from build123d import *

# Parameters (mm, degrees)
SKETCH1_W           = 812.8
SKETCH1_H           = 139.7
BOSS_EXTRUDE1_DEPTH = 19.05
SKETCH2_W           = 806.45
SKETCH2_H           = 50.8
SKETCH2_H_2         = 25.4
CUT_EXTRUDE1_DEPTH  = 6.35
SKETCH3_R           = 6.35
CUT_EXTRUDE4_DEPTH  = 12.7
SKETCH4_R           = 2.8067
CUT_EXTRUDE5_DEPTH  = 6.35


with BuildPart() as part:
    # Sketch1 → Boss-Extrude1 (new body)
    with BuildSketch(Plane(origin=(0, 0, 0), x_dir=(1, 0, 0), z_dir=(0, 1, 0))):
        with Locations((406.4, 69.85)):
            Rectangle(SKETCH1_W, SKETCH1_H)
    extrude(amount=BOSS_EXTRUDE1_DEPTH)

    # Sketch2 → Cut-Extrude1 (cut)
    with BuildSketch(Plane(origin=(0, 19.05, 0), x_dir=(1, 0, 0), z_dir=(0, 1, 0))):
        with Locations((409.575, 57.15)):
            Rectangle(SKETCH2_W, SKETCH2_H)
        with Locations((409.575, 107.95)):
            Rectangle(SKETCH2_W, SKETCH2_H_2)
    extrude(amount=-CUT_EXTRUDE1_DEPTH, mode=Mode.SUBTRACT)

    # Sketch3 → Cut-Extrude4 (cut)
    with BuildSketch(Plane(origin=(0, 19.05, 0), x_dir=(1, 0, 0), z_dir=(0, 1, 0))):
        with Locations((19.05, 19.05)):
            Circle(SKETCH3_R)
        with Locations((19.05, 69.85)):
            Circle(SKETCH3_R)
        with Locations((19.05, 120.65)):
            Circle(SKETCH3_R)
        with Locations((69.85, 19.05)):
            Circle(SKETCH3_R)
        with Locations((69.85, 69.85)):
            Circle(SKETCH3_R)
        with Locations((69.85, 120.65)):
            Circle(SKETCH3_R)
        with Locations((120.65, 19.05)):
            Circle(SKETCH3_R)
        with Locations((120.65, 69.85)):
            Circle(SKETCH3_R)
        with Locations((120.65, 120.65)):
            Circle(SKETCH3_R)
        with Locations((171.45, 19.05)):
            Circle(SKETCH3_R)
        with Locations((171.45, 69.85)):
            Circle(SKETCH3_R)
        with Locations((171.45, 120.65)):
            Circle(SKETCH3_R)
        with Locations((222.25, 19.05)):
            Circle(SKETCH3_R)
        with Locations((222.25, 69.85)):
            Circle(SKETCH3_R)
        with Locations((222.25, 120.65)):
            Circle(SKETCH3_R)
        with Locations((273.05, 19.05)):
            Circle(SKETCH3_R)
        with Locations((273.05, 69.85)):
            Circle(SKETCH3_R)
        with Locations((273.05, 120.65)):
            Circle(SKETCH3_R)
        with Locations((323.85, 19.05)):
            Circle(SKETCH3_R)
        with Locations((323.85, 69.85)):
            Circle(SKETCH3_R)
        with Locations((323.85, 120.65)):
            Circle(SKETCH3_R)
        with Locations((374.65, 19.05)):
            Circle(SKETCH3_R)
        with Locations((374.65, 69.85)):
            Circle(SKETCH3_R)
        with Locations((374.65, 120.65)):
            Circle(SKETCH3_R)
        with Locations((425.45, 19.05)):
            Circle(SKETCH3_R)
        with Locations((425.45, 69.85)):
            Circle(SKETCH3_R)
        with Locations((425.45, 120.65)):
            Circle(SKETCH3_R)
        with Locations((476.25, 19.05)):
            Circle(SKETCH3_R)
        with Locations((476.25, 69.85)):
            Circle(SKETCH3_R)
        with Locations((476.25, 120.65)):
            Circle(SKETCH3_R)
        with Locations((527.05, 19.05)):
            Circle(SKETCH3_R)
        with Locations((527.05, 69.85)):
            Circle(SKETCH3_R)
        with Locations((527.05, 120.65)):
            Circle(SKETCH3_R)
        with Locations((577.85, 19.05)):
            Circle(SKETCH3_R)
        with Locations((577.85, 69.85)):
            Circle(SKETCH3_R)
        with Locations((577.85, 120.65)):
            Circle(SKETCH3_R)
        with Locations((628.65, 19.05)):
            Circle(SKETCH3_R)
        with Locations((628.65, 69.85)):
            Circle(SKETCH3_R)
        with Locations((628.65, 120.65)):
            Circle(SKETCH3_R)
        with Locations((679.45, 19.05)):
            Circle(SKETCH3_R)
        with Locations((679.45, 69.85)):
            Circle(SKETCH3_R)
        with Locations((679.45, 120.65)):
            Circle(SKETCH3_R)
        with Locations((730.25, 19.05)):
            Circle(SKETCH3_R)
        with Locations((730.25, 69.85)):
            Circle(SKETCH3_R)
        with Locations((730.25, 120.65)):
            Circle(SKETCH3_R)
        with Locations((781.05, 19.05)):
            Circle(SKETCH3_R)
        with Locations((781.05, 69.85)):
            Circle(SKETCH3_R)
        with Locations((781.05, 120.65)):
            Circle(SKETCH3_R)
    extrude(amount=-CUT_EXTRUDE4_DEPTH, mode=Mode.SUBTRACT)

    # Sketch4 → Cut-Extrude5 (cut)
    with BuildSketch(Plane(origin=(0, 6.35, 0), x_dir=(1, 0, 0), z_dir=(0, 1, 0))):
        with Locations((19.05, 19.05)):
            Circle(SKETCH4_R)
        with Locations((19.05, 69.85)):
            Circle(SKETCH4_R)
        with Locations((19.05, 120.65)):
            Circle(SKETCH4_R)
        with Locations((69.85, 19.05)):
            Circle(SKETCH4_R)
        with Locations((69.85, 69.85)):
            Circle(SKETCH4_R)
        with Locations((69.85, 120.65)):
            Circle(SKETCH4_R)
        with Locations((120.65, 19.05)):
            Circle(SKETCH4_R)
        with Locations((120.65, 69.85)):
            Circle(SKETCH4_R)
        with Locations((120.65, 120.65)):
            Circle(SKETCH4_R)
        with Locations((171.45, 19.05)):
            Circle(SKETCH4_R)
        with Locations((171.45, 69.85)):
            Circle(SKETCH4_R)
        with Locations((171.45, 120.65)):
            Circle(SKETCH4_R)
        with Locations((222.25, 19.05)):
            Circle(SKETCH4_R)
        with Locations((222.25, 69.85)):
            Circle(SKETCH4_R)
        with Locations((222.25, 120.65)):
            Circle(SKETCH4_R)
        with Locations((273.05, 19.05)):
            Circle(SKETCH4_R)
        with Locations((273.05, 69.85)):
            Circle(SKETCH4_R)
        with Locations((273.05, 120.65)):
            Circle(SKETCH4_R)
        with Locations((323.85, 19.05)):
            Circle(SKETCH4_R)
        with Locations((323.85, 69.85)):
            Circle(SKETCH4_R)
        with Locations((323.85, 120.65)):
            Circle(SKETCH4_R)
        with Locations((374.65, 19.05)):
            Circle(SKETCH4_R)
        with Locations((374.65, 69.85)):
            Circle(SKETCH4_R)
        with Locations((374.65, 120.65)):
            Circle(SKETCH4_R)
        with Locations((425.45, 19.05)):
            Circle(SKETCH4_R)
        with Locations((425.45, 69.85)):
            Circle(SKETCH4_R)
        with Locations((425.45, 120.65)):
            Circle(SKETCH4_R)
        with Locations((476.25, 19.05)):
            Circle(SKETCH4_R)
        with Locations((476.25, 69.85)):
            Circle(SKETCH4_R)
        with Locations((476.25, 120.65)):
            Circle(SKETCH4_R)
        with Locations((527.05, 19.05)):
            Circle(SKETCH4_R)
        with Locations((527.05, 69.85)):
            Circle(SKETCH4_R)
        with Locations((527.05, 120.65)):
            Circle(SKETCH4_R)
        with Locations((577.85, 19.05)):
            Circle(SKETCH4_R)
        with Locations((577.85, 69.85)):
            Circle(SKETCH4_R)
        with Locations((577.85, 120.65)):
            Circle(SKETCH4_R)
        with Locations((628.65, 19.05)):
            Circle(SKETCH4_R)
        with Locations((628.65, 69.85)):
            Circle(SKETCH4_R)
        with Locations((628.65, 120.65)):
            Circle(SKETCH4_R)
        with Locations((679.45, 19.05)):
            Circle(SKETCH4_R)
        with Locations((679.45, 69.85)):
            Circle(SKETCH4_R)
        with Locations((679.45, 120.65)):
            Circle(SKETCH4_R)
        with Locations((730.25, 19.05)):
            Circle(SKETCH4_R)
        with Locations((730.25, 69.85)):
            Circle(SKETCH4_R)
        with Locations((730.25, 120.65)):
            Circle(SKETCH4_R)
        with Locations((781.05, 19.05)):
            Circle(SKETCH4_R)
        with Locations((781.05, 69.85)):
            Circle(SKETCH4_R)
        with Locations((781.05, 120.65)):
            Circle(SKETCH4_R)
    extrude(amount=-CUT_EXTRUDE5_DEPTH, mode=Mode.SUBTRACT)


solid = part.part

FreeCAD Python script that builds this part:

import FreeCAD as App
import Part
import Sketcher
from FreeCAD import Vector
Q = App.Units.Quantity

doc = App.newDocument("Part")
body = doc.addObject("PartDesign::Body", "Body")

# Sketch on XZ plane
sketch1 = doc.addObject("Sketcher::SketchObject", "Sketch")
body.addObject(sketch1)
sketch1.AttachmentSupport = (doc.XZ_Plane, [""])
sketch1.MapMode = "FlatFace"
sketch1.addGeometry([
    Part.LineSegment(Vector(0, -140, 0), Vector(0, 0, 0)),
    Part.LineSegment(Vector(0, 0, 0), Vector(813, 0, 0)),
    Part.LineSegment(Vector(813, 0, 0), Vector(813, -140, 0)),
    Part.LineSegment(Vector(813, -140, 0), Vector(0, -140, 0)),
], False)
sketch1.addConstraint([
    Sketcher.Constraint("Coincident", 0, 2, 1, 1),
    Sketcher.Constraint("Coincident", 1, 2, 2, 1),
    Sketcher.Constraint("Coincident", 2, 2, 3, 1),
    Sketcher.Constraint("Coincident", 3, 2, 0, 1),
    Sketcher.Constraint("Vertical", 0),
    Sketcher.Constraint("Horizontal", 1),
    Sketcher.Constraint("Vertical", 2),
    Sketcher.Constraint("Horizontal", 3),
    Sketcher.Constraint("Coincident", 0, 2, -1, 1),
    Sketcher.Constraint("DistanceX", 1, 1, 1, 2, Q("32 in")),
    Sketcher.Constraint("DistanceY", 0, 1, 0, 2, Q("5.5 in")),
])
pad1 = doc.addObject("PartDesign::Pad", "Pad")
body.addObject(pad1)
pad1.Profile = sketch1
pad1.Length = Q("0.75 in")
pad1.Reversed = True

# Sketch on XZ plane
sketch2 = doc.addObject("Sketcher::SketchObject", "Sketch001")
body.addObject(sketch2)
sketch2.AttachmentSupport = (doc.XZ_Plane, [""])
sketch2.MapMode = "FlatFace"
sketch2.AttachmentOffset = App.Placement(Vector(0, 0, -0.75 * 25.4), App.Rotation())
sketch2.addGeometry([
    Part.LineSegment(Vector(6, -83, 0), Vector(6, -32, 0)),  # 0
    Part.LineSegment(Vector(6, -32, 0), Vector(813, -32, 0)),  # 1
    Part.LineSegment(Vector(813, -32, 0), Vector(813, -83, 0)),  # 2
    Part.LineSegment(Vector(813, -83, 0), Vector(6, -83, 0)),  # 3
    Part.LineSegment(Vector(6, -121, 0), Vector(6, -95, 0)),  # 4
    Part.LineSegment(Vector(6, -95, 0), Vector(813, -95, 0)),  # 5
    Part.LineSegment(Vector(813, -95, 0), Vector(813, -121, 0)),  # 6
    Part.LineSegment(Vector(813, -121, 0), Vector(6, -121, 0)),  # 7
], False)
sketch2.addConstraint([
    Sketcher.Constraint("Coincident", 0, 2, 1, 1),
    Sketcher.Constraint("Coincident", 1, 2, 2, 1),
    Sketcher.Constraint("Coincident", 2, 2, 3, 1),
    Sketcher.Constraint("Coincident", 3, 2, 0, 1),
    Sketcher.Constraint("Coincident", 4, 2, 5, 1),
    Sketcher.Constraint("Coincident", 5, 2, 6, 1),
    Sketcher.Constraint("Coincident", 6, 2, 7, 1),
    Sketcher.Constraint("Coincident", 7, 2, 4, 1),
    Sketcher.Constraint("Vertical", 0),
    Sketcher.Constraint("Horizontal", 1),
    Sketcher.Constraint("Vertical", 2),
    Sketcher.Constraint("Horizontal", 3),
    Sketcher.Constraint("Vertical", 4),
    Sketcher.Constraint("Horizontal", 5),
    Sketcher.Constraint("Vertical", 6),
    Sketcher.Constraint("Horizontal", 7),
    Sketcher.Constraint("Vertical", 3, 2, 4, 2),
    Sketcher.Constraint("Vertical", 2, 2, 5, 2),
    Sketcher.Constraint("DistanceY", 0, 1, 0, 2, Q("2 in")),
    Sketcher.Constraint("DistanceY", 4, 1, 4, 2, Q("1 in")),
    Sketcher.Constraint("DistanceX", -1, 1, 1, 2, Q("32 in")),
    Sketcher.Constraint("DistanceX", 1, 1, 1, 2, Q("31.75 in")),
    Sketcher.Constraint("DistanceY", 4, 2, 3, 2, Q("0.5 in")),
    Sketcher.Constraint("DistanceY", 0, 2, -1, 1, Q("1.25 in")),
])
pocket1 = doc.addObject("PartDesign::Pocket", "Pocket")
body.addObject(pocket1)
pocket1.Profile = sketch2
pocket1.Length = Q("0.25 in")
pocket1.Reversed = True

# Sketch on XZ plane
sketch3 = doc.addObject("Sketcher::SketchObject", "Sketch002")
body.addObject(sketch3)
sketch3.AttachmentSupport = (doc.XZ_Plane, [""])
sketch3.MapMode = "FlatFace"
sketch3.AttachmentOffset = App.Placement(Vector(0, 0, -0.75 * 25.4), App.Rotation())
sketch3.addGeometry([
    Part.Circle(Vector(19, -19, 0), Vector(0, 0, 1), 6),  # 0
    Part.Circle(Vector(19, -70, 0), Vector(0, 0, 1), 6),  # 1
    Part.Circle(Vector(19, -121, 0), Vector(0, 0, 1), 6),  # 2
    Part.Circle(Vector(70, -19, 0), Vector(0, 0, 1), 6),  # 3
    Part.Circle(Vector(70, -70, 0), Vector(0, 0, 1), 6),  # 4
    Part.Circle(Vector(70, -121, 0), Vector(0, 0, 1), 6),  # 5
    Part.Circle(Vector(121, -19, 0), Vector(0, 0, 1), 6),  # 6
    Part.Circle(Vector(121, -70, 0), Vector(0, 0, 1), 6),  # 7
    Part.Circle(Vector(121, -121, 0), Vector(0, 0, 1), 6),  # 8
    Part.Circle(Vector(171, -19, 0), Vector(0, 0, 1), 6),  # 9
    Part.Circle(Vector(171, -70, 0), Vector(0, 0, 1), 6),  # 10
    Part.Circle(Vector(171, -121, 0), Vector(0, 0, 1), 6),  # 11
    Part.Circle(Vector(222, -19, 0), Vector(0, 0, 1), 6),  # 12
    Part.Circle(Vector(222, -70, 0), Vector(0, 0, 1), 6),  # 13
    Part.Circle(Vector(222, -121, 0), Vector(0, 0, 1), 6),  # 14
    Part.Circle(Vector(273, -19, 0), Vector(0, 0, 1), 6),  # 15
    Part.Circle(Vector(273, -70, 0), Vector(0, 0, 1), 6),  # 16
    Part.Circle(Vector(273, -121, 0), Vector(0, 0, 1), 6),  # 17
    Part.Circle(Vector(324, -19, 0), Vector(0, 0, 1), 6),  # 18
    Part.Circle(Vector(324, -70, 0), Vector(0, 0, 1), 6),  # 19
    Part.Circle(Vector(324, -121, 0), Vector(0, 0, 1), 6),  # 20
    Part.Circle(Vector(375, -19, 0), Vector(0, 0, 1), 6),  # 21
    Part.Circle(Vector(375, -70, 0), Vector(0, 0, 1), 6),  # 22
    Part.Circle(Vector(375, -121, 0), Vector(0, 0, 1), 6),  # 23
    Part.Circle(Vector(425, -19, 0), Vector(0, 0, 1), 6),  # 24
    Part.Circle(Vector(425, -70, 0), Vector(0, 0, 1), 6),  # 25
    Part.Circle(Vector(425, -121, 0), Vector(0, 0, 1), 6),  # 26
    Part.Circle(Vector(476, -19, 0), Vector(0, 0, 1), 6),  # 27
    Part.Circle(Vector(476, -70, 0), Vector(0, 0, 1), 6),  # 28
    Part.Circle(Vector(476, -121, 0), Vector(0, 0, 1), 6),  # 29
    Part.Circle(Vector(527, -19, 0), Vector(0, 0, 1), 6),  # 30
    Part.Circle(Vector(527, -70, 0), Vector(0, 0, 1), 6),  # 31
    Part.Circle(Vector(527, -121, 0), Vector(0, 0, 1), 6),  # 32
    Part.Circle(Vector(578, -19, 0), Vector(0, 0, 1), 6),  # 33
    Part.Circle(Vector(578, -70, 0), Vector(0, 0, 1), 6),  # 34
    Part.Circle(Vector(578, -121, 0), Vector(0, 0, 1), 6),  # 35
    Part.Circle(Vector(629, -19, 0), Vector(0, 0, 1), 6),  # 36
    Part.Circle(Vector(629, -70, 0), Vector(0, 0, 1), 6),  # 37
    Part.Circle(Vector(629, -121, 0), Vector(0, 0, 1), 6),  # 38
    Part.Circle(Vector(679, -19, 0), Vector(0, 0, 1), 6),  # 39
    Part.Circle(Vector(679, -70, 0), Vector(0, 0, 1), 6),  # 40
    Part.Circle(Vector(679, -121, 0), Vector(0, 0, 1), 6),  # 41
    Part.Circle(Vector(730, -19, 0), Vector(0, 0, 1), 6),  # 42
    Part.Circle(Vector(730, -70, 0), Vector(0, 0, 1), 6),  # 43
    Part.Circle(Vector(730, -121, 0), Vector(0, 0, 1), 6),  # 44
    Part.Circle(Vector(781, -19, 0), Vector(0, 0, 1), 6),  # 45
    Part.Circle(Vector(781, -70, 0), Vector(0, 0, 1), 6),  # 46
    Part.Circle(Vector(781, -121, 0), Vector(0, 0, 1), 6),  # 47
], False)
sketch3.addConstraint([
    Sketcher.Constraint("Equal", 0, 1),
    Sketcher.Constraint("Equal", 1, 2),
    Sketcher.Constraint("Equal", 2, 3),
    Sketcher.Constraint("Equal", 3, 4),
    Sketcher.Constraint("Equal", 4, 5),
    Sketcher.Constraint("Equal", 5, 6),
    Sketcher.Constraint("Equal", 6, 7),
    Sketcher.Constraint("Equal", 7, 8),
    Sketcher.Constraint("Equal", 8, 9),
    Sketcher.Constraint("Equal", 9, 10),
    Sketcher.Constraint("Equal", 10, 11),
    Sketcher.Constraint("Equal", 11, 12),
    Sketcher.Constraint("Equal", 12, 13),
    Sketcher.Constraint("Equal", 13, 14),
    Sketcher.Constraint("Equal", 14, 15),
    Sketcher.Constraint("Equal", 15, 16),
    Sketcher.Constraint("Equal", 16, 17),
    Sketcher.Constraint("Equal", 17, 18),
    Sketcher.Constraint("Equal", 18, 19),
    Sketcher.Constraint("Equal", 19, 20),
    Sketcher.Constraint("Equal", 20, 21),
    Sketcher.Constraint("Equal", 21, 22),
    Sketcher.Constraint("Equal", 22, 23),
    Sketcher.Constraint("Equal", 23, 24),
    Sketcher.Constraint("Equal", 24, 25),
    Sketcher.Constraint("Equal", 25, 26),
    Sketcher.Constraint("Equal", 26, 27),
    Sketcher.Constraint("Equal", 27, 28),
    Sketcher.Constraint("Equal", 28, 29),
    Sketcher.Constraint("Equal", 29, 30),
    Sketcher.Constraint("Equal", 30, 31),
    Sketcher.Constraint("Equal", 31, 32),
    Sketcher.Constraint("Equal", 32, 33),
    Sketcher.Constraint("Equal", 33, 34),
    Sketcher.Constraint("Equal", 34, 35),
    Sketcher.Constraint("Equal", 35, 36),
    Sketcher.Constraint("Equal", 36, 37),
    Sketcher.Constraint("Equal", 37, 38),
    Sketcher.Constraint("Equal", 38, 39),
    Sketcher.Constraint("Equal", 39, 40),
    Sketcher.Constraint("Equal", 40, 41),
    Sketcher.Constraint("Equal", 41, 42),
    Sketcher.Constraint("Equal", 42, 43),
    Sketcher.Constraint("Equal", 43, 44),
    Sketcher.Constraint("Equal", 44, 45),
    Sketcher.Constraint("Equal", 45, 46),
    Sketcher.Constraint("Equal", 46, 47),
    Sketcher.Constraint("Horizontal", 0, 3, 3, 3),
    Sketcher.Constraint("Horizontal", 1, 3, 4, 3),
    Sketcher.Constraint("Horizontal", 2, 3, 5, 3),
    Sketcher.Constraint("Horizontal", 3, 3, 6, 3),
    Sketcher.Constraint("Horizontal", 4, 3, 7, 3),
    Sketcher.Constraint("Horizontal", 5, 3, 8, 3),
    Sketcher.Constraint("Horizontal", 6, 3, 9, 3),
    Sketcher.Constraint("Horizontal", 7, 3, 10, 3),
    Sketcher.Constraint("Horizontal", 8, 3, 11, 3),
    Sketcher.Constraint("Horizontal", 9, 3, 12, 3),
    Sketcher.Constraint("Horizontal", 10, 3, 13, 3),
    Sketcher.Constraint("Horizontal", 11, 3, 14, 3),
    Sketcher.Constraint("Horizontal", 12, 3, 15, 3),
    Sketcher.Constraint("Horizontal", 13, 3, 16, 3),
    Sketcher.Constraint("Horizontal", 14, 3, 17, 3),
    Sketcher.Constraint("Horizontal", 15, 3, 18, 3),
    Sketcher.Constraint("Horizontal", 16, 3, 19, 3),
    Sketcher.Constraint("Horizontal", 17, 3, 20, 3),
    Sketcher.Constraint("Horizontal", 18, 3, 21, 3),
    Sketcher.Constraint("Horizontal", 19, 3, 22, 3),
    Sketcher.Constraint("Horizontal", 20, 3, 23, 3),
    Sketcher.Constraint("Horizontal", 21, 3, 24, 3),
    Sketcher.Constraint("Horizontal", 22, 3, 25, 3),
    Sketcher.Constraint("Horizontal", 23, 3, 26, 3),
    Sketcher.Constraint("Horizontal", 24, 3, 27, 3),
    Sketcher.Constraint("Horizontal", 25, 3, 28, 3),
    Sketcher.Constraint("Horizontal", 26, 3, 29, 3),
    Sketcher.Constraint("Horizontal", 27, 3, 30, 3),
    Sketcher.Constraint("Horizontal", 28, 3, 31, 3),
    Sketcher.Constraint("Horizontal", 29, 3, 32, 3),
    Sketcher.Constraint("Horizontal", 30, 3, 33, 3),
    Sketcher.Constraint("Horizontal", 31, 3, 34, 3),
    Sketcher.Constraint("Horizontal", 32, 3, 35, 3),
    Sketcher.Constraint("Horizontal", 33, 3, 36, 3),
    Sketcher.Constraint("Horizontal", 34, 3, 37, 3),
    Sketcher.Constraint("Horizontal", 35, 3, 38, 3),
    Sketcher.Constraint("Horizontal", 36, 3, 39, 3),
    Sketcher.Constraint("Horizontal", 37, 3, 40, 3),
    Sketcher.Constraint("Horizontal", 38, 3, 41, 3),
    Sketcher.Constraint("Horizontal", 39, 3, 42, 3),
    Sketcher.Constraint("Horizontal", 40, 3, 43, 3),
    Sketcher.Constraint("Horizontal", 41, 3, 44, 3),
    Sketcher.Constraint("Horizontal", 42, 3, 45, 3),
    Sketcher.Constraint("Horizontal", 43, 3, 46, 3),
    Sketcher.Constraint("Horizontal", 44, 3, 47, 3),
    Sketcher.Constraint("Vertical", 0, 3, 1, 3),
    Sketcher.Constraint("Vertical", 1, 3, 2, 3),
    Sketcher.Constraint("Vertical", 3, 3, 4, 3),
    Sketcher.Constraint("Vertical", 4, 3, 5, 3),
    Sketcher.Constraint("Vertical", 6, 3, 7, 3),
    Sketcher.Constraint("Vertical", 7, 3, 8, 3),
    Sketcher.Constraint("Vertical", 9, 3, 10, 3),
    Sketcher.Constraint("Vertical", 10, 3, 11, 3),
    Sketcher.Constraint("Vertical", 12, 3, 13, 3),
    Sketcher.Constraint("Vertical", 13, 3, 14, 3),
    Sketcher.Constraint("Vertical", 15, 3, 16, 3),
    Sketcher.Constraint("Vertical", 16, 3, 17, 3),
    Sketcher.Constraint("Vertical", 18, 3, 19, 3),
    Sketcher.Constraint("Vertical", 19, 3, 20, 3),
    Sketcher.Constraint("Vertical", 21, 3, 22, 3),
    Sketcher.Constraint("Vertical", 22, 3, 23, 3),
    Sketcher.Constraint("Vertical", 24, 3, 25, 3),
    Sketcher.Constraint("Vertical", 25, 3, 26, 3),
    Sketcher.Constraint("Vertical", 27, 3, 28, 3),
    Sketcher.Constraint("Vertical", 28, 3, 29, 3),
    Sketcher.Constraint("Vertical", 30, 3, 31, 3),
    Sketcher.Constraint("Vertical", 31, 3, 32, 3),
    Sketcher.Constraint("Vertical", 33, 3, 34, 3),
    Sketcher.Constraint("Vertical", 34, 3, 35, 3),
    Sketcher.Constraint("Vertical", 36, 3, 37, 3),
    Sketcher.Constraint("Vertical", 37, 3, 38, 3),
    Sketcher.Constraint("Vertical", 39, 3, 40, 3),
    Sketcher.Constraint("Vertical", 40, 3, 41, 3),
    Sketcher.Constraint("Vertical", 42, 3, 43, 3),
    Sketcher.Constraint("Vertical", 43, 3, 44, 3),
    Sketcher.Constraint("Vertical", 45, 3, 46, 3),
    Sketcher.Constraint("Vertical", 46, 3, 47, 3),
    Sketcher.Constraint("Diameter", 0, Q("0.5 in")),
    Sketcher.Constraint("DistanceY", 1, 3, 0, 3, Q("2 in")),
    Sketcher.Constraint("DistanceY", 2, 3, 1, 3, Q("2 in")),
    Sketcher.Constraint("DistanceX", 0, 3, 3, 3, Q("2 in")),
    Sketcher.Constraint("DistanceX", 3, 3, 6, 3, Q("2 in")),
    Sketcher.Constraint("DistanceX", 6, 3, 9, 3, Q("2 in")),
    Sketcher.Constraint("DistanceX", 9, 3, 12, 3, Q("2 in")),
    Sketcher.Constraint("DistanceX", 12, 3, 15, 3, Q("2 in")),
    Sketcher.Constraint("DistanceX", 15, 3, 18, 3, Q("2 in")),
    Sketcher.Constraint("DistanceX", 18, 3, 21, 3, Q("2 in")),
    Sketcher.Constraint("DistanceX", 21, 3, 24, 3, Q("2 in")),
    Sketcher.Constraint("DistanceX", 24, 3, 27, 3, Q("2 in")),
    Sketcher.Constraint("DistanceX", 27, 3, 30, 3, Q("2 in")),
    Sketcher.Constraint("DistanceX", 30, 3, 33, 3, Q("2 in")),
    Sketcher.Constraint("DistanceX", 33, 3, 36, 3, Q("2 in")),
    Sketcher.Constraint("DistanceX", 36, 3, 39, 3, Q("2 in")),
    Sketcher.Constraint("DistanceX", 39, 3, 42, 3, Q("2 in")),
    Sketcher.Constraint("DistanceX", 42, 3, 45, 3, Q("2 in")),
    Sketcher.Constraint("DistanceX", -1, 1, 0, 3, Q("0.75 in")),
    Sketcher.Constraint("DistanceY", 0, 3, -1, 1, Q("0.75 in")),
])
pocket2 = doc.addObject("PartDesign::Pocket", "Pocket001")
body.addObject(pocket2)
pocket2.Profile = sketch3
pocket2.Length = Q("0.5 in")
pocket2.Reversed = True

# Sketch on XZ plane
sketch4 = doc.addObject("Sketcher::SketchObject", "Sketch003")
body.addObject(sketch4)
sketch4.AttachmentSupport = (doc.XZ_Plane, [""])
sketch4.MapMode = "FlatFace"
sketch4.AttachmentOffset = App.Placement(Vector(0, 0, -0.25 * 25.4), App.Rotation())
sketch4.addGeometry([
    Part.Circle(Vector(19.1, -19.1, 0), Vector(0, 0, 1), 2.8),  # 0
    Part.Circle(Vector(19.1, -69.8, 0), Vector(0, 0, 1), 2.8),  # 1
    Part.Circle(Vector(19.1, -120.7, 0), Vector(0, 0, 1), 2.8),  # 2
    Part.Circle(Vector(69.8, -19.1, 0), Vector(0, 0, 1), 2.8),  # 3
    Part.Circle(Vector(69.8, -69.8, 0), Vector(0, 0, 1), 2.8),  # 4
    Part.Circle(Vector(69.8, -120.7, 0), Vector(0, 0, 1), 2.8),  # 5
    Part.Circle(Vector(120.7, -19.1, 0), Vector(0, 0, 1), 2.8),  # 6
    Part.Circle(Vector(120.7, -69.8, 0), Vector(0, 0, 1), 2.8),  # 7
    Part.Circle(Vector(120.7, -120.7, 0), Vector(0, 0, 1), 2.8),  # 8
    Part.Circle(Vector(171.4, -19.1, 0), Vector(0, 0, 1), 2.8),  # 9
    Part.Circle(Vector(171.4, -69.8, 0), Vector(0, 0, 1), 2.8),  # 10
    Part.Circle(Vector(171.4, -120.7, 0), Vector(0, 0, 1), 2.8),  # 11
    Part.Circle(Vector(222.2, -19.1, 0), Vector(0, 0, 1), 2.8),  # 12
    Part.Circle(Vector(222.2, -69.8, 0), Vector(0, 0, 1), 2.8),  # 13
    Part.Circle(Vector(222.2, -120.7, 0), Vector(0, 0, 1), 2.8),  # 14
    Part.Circle(Vector(273.1, -19.1, 0), Vector(0, 0, 1), 2.8),  # 15
    Part.Circle(Vector(273.1, -69.8, 0), Vector(0, 0, 1), 2.8),  # 16
    Part.Circle(Vector(273.1, -120.7, 0), Vector(0, 0, 1), 2.8),  # 17
    Part.Circle(Vector(323.9, -19.1, 0), Vector(0, 0, 1), 2.8),  # 18
    Part.Circle(Vector(323.9, -69.8, 0), Vector(0, 0, 1), 2.8),  # 19
    Part.Circle(Vector(323.9, -120.7, 0), Vector(0, 0, 1), 2.8),  # 20
    Part.Circle(Vector(374.6, -19.1, 0), Vector(0, 0, 1), 2.8),  # 21
    Part.Circle(Vector(374.6, -69.8, 0), Vector(0, 0, 1), 2.8),  # 22
    Part.Circle(Vector(374.6, -120.7, 0), Vector(0, 0, 1), 2.8),  # 23
    Part.Circle(Vector(425.4, -19.1, 0), Vector(0, 0, 1), 2.8),  # 24
    Part.Circle(Vector(425.4, -69.8, 0), Vector(0, 0, 1), 2.8),  # 25
    Part.Circle(Vector(425.4, -120.7, 0), Vector(0, 0, 1), 2.8),  # 26
    Part.Circle(Vector(476.2, -19.1, 0), Vector(0, 0, 1), 2.8),  # 27
    Part.Circle(Vector(476.2, -69.8, 0), Vector(0, 0, 1), 2.8),  # 28
    Part.Circle(Vector(476.2, -120.7, 0), Vector(0, 0, 1), 2.8),  # 29
    Part.Circle(Vector(527, -19.1, 0), Vector(0, 0, 1), 2.8),  # 30
    Part.Circle(Vector(527, -69.8, 0), Vector(0, 0, 1), 2.8),  # 31
    Part.Circle(Vector(527, -120.7, 0), Vector(0, 0, 1), 2.8),  # 32
    Part.Circle(Vector(577.9, -19.1, 0), Vector(0, 0, 1), 2.8),  # 33
    Part.Circle(Vector(577.9, -69.8, 0), Vector(0, 0, 1), 2.8),  # 34
    Part.Circle(Vector(577.9, -120.7, 0), Vector(0, 0, 1), 2.8),  # 35
    Part.Circle(Vector(628.6, -19.1, 0), Vector(0, 0, 1), 2.8),  # 36
    Part.Circle(Vector(628.6, -69.8, 0), Vector(0, 0, 1), 2.8),  # 37
    Part.Circle(Vector(628.6, -120.7, 0), Vector(0, 0, 1), 2.8),  # 38
    Part.Circle(Vector(679.5, -19.1, 0), Vector(0, 0, 1), 2.8),  # 39
    Part.Circle(Vector(679.5, -69.8, 0), Vector(0, 0, 1), 2.8),  # 40
    Part.Circle(Vector(679.5, -120.7, 0), Vector(0, 0, 1), 2.8),  # 41
    Part.Circle(Vector(730.2, -19.1, 0), Vector(0, 0, 1), 2.8),  # 42
    Part.Circle(Vector(730.2, -69.8, 0), Vector(0, 0, 1), 2.8),  # 43
    Part.Circle(Vector(730.2, -120.7, 0), Vector(0, 0, 1), 2.8),  # 44
    Part.Circle(Vector(781, -19.1, 0), Vector(0, 0, 1), 2.8),  # 45
    Part.Circle(Vector(781, -69.8, 0), Vector(0, 0, 1), 2.8),  # 46
    Part.Circle(Vector(781, -120.7, 0), Vector(0, 0, 1), 2.8),  # 47
], False)
sketch4.addConstraint([
    Sketcher.Constraint("Equal", 0, 1),
    Sketcher.Constraint("Equal", 1, 2),
    Sketcher.Constraint("Equal", 2, 3),
    Sketcher.Constraint("Equal", 3, 4),
    Sketcher.Constraint("Equal", 4, 5),
    Sketcher.Constraint("Equal", 5, 6),
    Sketcher.Constraint("Equal", 6, 7),
    Sketcher.Constraint("Equal", 7, 8),
    Sketcher.Constraint("Equal", 8, 9),
    Sketcher.Constraint("Equal", 9, 10),
    Sketcher.Constraint("Equal", 10, 11),
    Sketcher.Constraint("Equal", 11, 12),
    Sketcher.Constraint("Equal", 12, 13),
    Sketcher.Constraint("Equal", 13, 14),
    Sketcher.Constraint("Equal", 14, 15),
    Sketcher.Constraint("Equal", 15, 16),
    Sketcher.Constraint("Equal", 16, 17),
    Sketcher.Constraint("Equal", 17, 18),
    Sketcher.Constraint("Equal", 18, 19),
    Sketcher.Constraint("Equal", 19, 20),
    Sketcher.Constraint("Equal", 20, 21),
    Sketcher.Constraint("Equal", 21, 22),
    Sketcher.Constraint("Equal", 22, 23),
    Sketcher.Constraint("Equal", 23, 24),
    Sketcher.Constraint("Equal", 24, 25),
    Sketcher.Constraint("Equal", 25, 26),
    Sketcher.Constraint("Equal", 26, 27),
    Sketcher.Constraint("Equal", 27, 28),
    Sketcher.Constraint("Equal", 28, 29),
    Sketcher.Constraint("Equal", 29, 30),
    Sketcher.Constraint("Equal", 30, 31),
    Sketcher.Constraint("Equal", 31, 32),
    Sketcher.Constraint("Equal", 32, 33),
    Sketcher.Constraint("Equal", 33, 34),
    Sketcher.Constraint("Equal", 34, 35),
    Sketcher.Constraint("Equal", 35, 36),
    Sketcher.Constraint("Equal", 36, 37),
    Sketcher.Constraint("Equal", 37, 38),
    Sketcher.Constraint("Equal", 38, 39),
    Sketcher.Constraint("Equal", 39, 40),
    Sketcher.Constraint("Equal", 40, 41),
    Sketcher.Constraint("Equal", 41, 42),
    Sketcher.Constraint("Equal", 42, 43),
    Sketcher.Constraint("Equal", 43, 44),
    Sketcher.Constraint("Equal", 44, 45),
    Sketcher.Constraint("Equal", 45, 46),
    Sketcher.Constraint("Equal", 46, 47),
    Sketcher.Constraint("Horizontal", 0, 3, 3, 3),
    Sketcher.Constraint("Horizontal", 1, 3, 4, 3),
    Sketcher.Constraint("Horizontal", 2, 3, 5, 3),
    Sketcher.Constraint("Horizontal", 3, 3, 6, 3),
    Sketcher.Constraint("Horizontal", 4, 3, 7, 3),
    Sketcher.Constraint("Horizontal", 5, 3, 8, 3),
    Sketcher.Constraint("Horizontal", 6, 3, 9, 3),
    Sketcher.Constraint("Horizontal", 7, 3, 10, 3),
    Sketcher.Constraint("Horizontal", 8, 3, 11, 3),
    Sketcher.Constraint("Horizontal", 9, 3, 12, 3),
    Sketcher.Constraint("Horizontal", 10, 3, 13, 3),
    Sketcher.Constraint("Horizontal", 11, 3, 14, 3),
    Sketcher.Constraint("Horizontal", 12, 3, 15, 3),
    Sketcher.Constraint("Horizontal", 13, 3, 16, 3),
    Sketcher.Constraint("Horizontal", 14, 3, 17, 3),
    Sketcher.Constraint("Horizontal", 15, 3, 18, 3),
    Sketcher.Constraint("Horizontal", 16, 3, 19, 3),
    Sketcher.Constraint("Horizontal", 17, 3, 20, 3),
    Sketcher.Constraint("Horizontal", 18, 3, 21, 3),
    Sketcher.Constraint("Horizontal", 19, 3, 22, 3),
    Sketcher.Constraint("Horizontal", 20, 3, 23, 3),
    Sketcher.Constraint("Horizontal", 21, 3, 24, 3),
    Sketcher.Constraint("Horizontal", 22, 3, 25, 3),
    Sketcher.Constraint("Horizontal", 23, 3, 26, 3),
    Sketcher.Constraint("Horizontal", 24, 3, 27, 3),
    Sketcher.Constraint("Horizontal", 25, 3, 28, 3),
    Sketcher.Constraint("Horizontal", 26, 3, 29, 3),
    Sketcher.Constraint("Horizontal", 27, 3, 30, 3),
    Sketcher.Constraint("Horizontal", 28, 3, 31, 3),
    Sketcher.Constraint("Horizontal", 29, 3, 32, 3),
    Sketcher.Constraint("Horizontal", 30, 3, 33, 3),
    Sketcher.Constraint("Horizontal", 31, 3, 34, 3),
    Sketcher.Constraint("Horizontal", 32, 3, 35, 3),
    Sketcher.Constraint("Horizontal", 33, 3, 36, 3),
    Sketcher.Constraint("Horizontal", 34, 3, 37, 3),
    Sketcher.Constraint("Horizontal", 35, 3, 38, 3),
    Sketcher.Constraint("Horizontal", 36, 3, 39, 3),
    Sketcher.Constraint("Horizontal", 37, 3, 40, 3),
    Sketcher.Constraint("Horizontal", 38, 3, 41, 3),
    Sketcher.Constraint("Horizontal", 39, 3, 42, 3),
    Sketcher.Constraint("Horizontal", 40, 3, 43, 3),
    Sketcher.Constraint("Horizontal", 41, 3, 44, 3),
    Sketcher.Constraint("Horizontal", 42, 3, 45, 3),
    Sketcher.Constraint("Horizontal", 43, 3, 46, 3),
    Sketcher.Constraint("Horizontal", 44, 3, 47, 3),
    Sketcher.Constraint("Vertical", 0, 3, 1, 3),
    Sketcher.Constraint("Vertical", 1, 3, 2, 3),
    Sketcher.Constraint("Vertical", 3, 3, 4, 3),
    Sketcher.Constraint("Vertical", 4, 3, 5, 3),
    Sketcher.Constraint("Vertical", 6, 3, 7, 3),
    Sketcher.Constraint("Vertical", 7, 3, 8, 3),
    Sketcher.Constraint("Vertical", 9, 3, 10, 3),
    Sketcher.Constraint("Vertical", 10, 3, 11, 3),
    Sketcher.Constraint("Vertical", 12, 3, 13, 3),
    Sketcher.Constraint("Vertical", 13, 3, 14, 3),
    Sketcher.Constraint("Vertical", 15, 3, 16, 3),
    Sketcher.Constraint("Vertical", 16, 3, 17, 3),
    Sketcher.Constraint("Vertical", 18, 3, 19, 3),
    Sketcher.Constraint("Vertical", 19, 3, 20, 3),
    Sketcher.Constraint("Vertical", 21, 3, 22, 3),
    Sketcher.Constraint("Vertical", 22, 3, 23, 3),
    Sketcher.Constraint("Vertical", 24, 3, 25, 3),
    Sketcher.Constraint("Vertical", 25, 3, 26, 3),
    Sketcher.Constraint("Vertical", 27, 3, 28, 3),
    Sketcher.Constraint("Vertical", 28, 3, 29, 3),
    Sketcher.Constraint("Vertical", 30, 3, 31, 3),
    Sketcher.Constraint("Vertical", 31, 3, 32, 3),
    Sketcher.Constraint("Vertical", 33, 3, 34, 3),
    Sketcher.Constraint("Vertical", 34, 3, 35, 3),
    Sketcher.Constraint("Vertical", 36, 3, 37, 3),
    Sketcher.Constraint("Vertical", 37, 3, 38, 3),
    Sketcher.Constraint("Vertical", 39, 3, 40, 3),
    Sketcher.Constraint("Vertical", 40, 3, 41, 3),
    Sketcher.Constraint("Vertical", 42, 3, 43, 3),
    Sketcher.Constraint("Vertical", 43, 3, 44, 3),
    Sketcher.Constraint("Vertical", 45, 3, 46, 3),
    Sketcher.Constraint("Vertical", 46, 3, 47, 3),
    Sketcher.Constraint("Diameter", 0, Q("0.221 in")),
    Sketcher.Constraint("DistanceY", 1, 3, 0, 3, Q("2 in")),
    Sketcher.Constraint("DistanceY", 2, 3, 1, 3, Q("2 in")),
    Sketcher.Constraint("DistanceX", 0, 3, 3, 3, Q("2 in")),
    Sketcher.Constraint("DistanceX", 3, 3, 6, 3, Q("2 in")),
    Sketcher.Constraint("DistanceX", 6, 3, 9, 3, Q("2 in")),
    Sketcher.Constraint("DistanceX", 9, 3, 12, 3, Q("2 in")),
    Sketcher.Constraint("DistanceX", 12, 3, 15, 3, Q("2 in")),
    Sketcher.Constraint("DistanceX", 15, 3, 18, 3, Q("2 in")),
    Sketcher.Constraint("DistanceX", 18, 3, 21, 3, Q("2 in")),
    Sketcher.Constraint("DistanceX", 21, 3, 24, 3, Q("2 in")),
    Sketcher.Constraint("DistanceX", 24, 3, 27, 3, Q("2 in")),
    Sketcher.Constraint("DistanceX", 27, 3, 30, 3, Q("2 in")),
    Sketcher.Constraint("DistanceX", 30, 3, 33, 3, Q("2 in")),
    Sketcher.Constraint("DistanceX", 33, 3, 36, 3, Q("2 in")),
    Sketcher.Constraint("DistanceX", 36, 3, 39, 3, Q("2 in")),
    Sketcher.Constraint("DistanceX", 39, 3, 42, 3, Q("2 in")),
    Sketcher.Constraint("DistanceX", 42, 3, 45, 3, Q("2 in")),
    Sketcher.Constraint("DistanceX", -1, 1, 0, 3, Q("0.75 in")),
    Sketcher.Constraint("DistanceY", 0, 3, -1, 1, Q("0.75 in")),
])
pocket3 = doc.addObject("PartDesign::Pocket", "Pocket002")
body.addObject(pocket3)
pocket3.Profile = sketch4
pocket3.Length = Q("0.25 in")
pocket3.Reversed = True

doc.recompute()
